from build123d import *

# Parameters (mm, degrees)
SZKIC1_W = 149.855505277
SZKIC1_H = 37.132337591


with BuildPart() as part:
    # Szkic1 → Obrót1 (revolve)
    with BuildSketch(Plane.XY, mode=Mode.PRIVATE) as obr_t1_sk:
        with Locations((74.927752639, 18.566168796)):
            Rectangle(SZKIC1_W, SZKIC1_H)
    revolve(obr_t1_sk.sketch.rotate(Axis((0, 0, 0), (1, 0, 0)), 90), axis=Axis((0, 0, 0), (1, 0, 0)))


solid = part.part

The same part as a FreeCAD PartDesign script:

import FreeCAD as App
import Part
import Sketcher
Q = App.Units.Quantity


def add_polygon(sketch, points):
    """Adds a closed chain of lines whose ends are joined by coincident constraints."""
    first, n = sketch.GeometryCount, len(points)
    for a, b in zip(points, points[1:] + points[:1]):
        sketch.addGeometry(Part.LineSegment(App.Vector(*a, 0), App.Vector(*b, 0)), False)
    for i in range(n):
        sketch.addConstraint(Sketcher.Constraint("Coincident", first + i, 2, first + (i + 1) % n, 1))

doc = App.newDocument("Part")
body = doc.addObject("PartDesign::Body", "Body")

sketch1 = doc.addObject("Sketcher::SketchObject", "Sketch")
body.addObject(sketch1)
sketch1.AttachmentSupport = (doc.XY_Plane, [""])
sketch1.MapMode = "FlatFace"
add_polygon(sketch1, [(0, 37.132338), (0, 0), (149.855505, 0), (149.855505, 37.132338)])
sketch1.addConstraint(Sketcher.Constraint("Vertical", 0))
sketch1.addConstraint(Sketcher.Constraint("Horizontal", 1))
sketch1.addConstraint(Sketcher.Constraint("Vertical", 2))
sketch1.addConstraint(Sketcher.Constraint("Horizontal", 3))
sketch1.addConstraint(Sketcher.Constraint("Coincident", 0, 2, -1, 1))
sketch1.addConstraint(Sketcher.Constraint("DistanceX", 1, 1, 1, 2, Q("149.855505 mm")))
sketch1.addConstraint(Sketcher.Constraint("DistanceY", 0, 2, 0, 1, Q("37.132338 mm")))
revolution = doc.addObject("PartDesign::Revolution", "Revolution")
body.addObject(revolution)
revolution.Profile = sketch1
revolution.ReferenceAxis = (sketch1, ["H_Axis"])
revolution.Angle = 360

doc.recompute()
